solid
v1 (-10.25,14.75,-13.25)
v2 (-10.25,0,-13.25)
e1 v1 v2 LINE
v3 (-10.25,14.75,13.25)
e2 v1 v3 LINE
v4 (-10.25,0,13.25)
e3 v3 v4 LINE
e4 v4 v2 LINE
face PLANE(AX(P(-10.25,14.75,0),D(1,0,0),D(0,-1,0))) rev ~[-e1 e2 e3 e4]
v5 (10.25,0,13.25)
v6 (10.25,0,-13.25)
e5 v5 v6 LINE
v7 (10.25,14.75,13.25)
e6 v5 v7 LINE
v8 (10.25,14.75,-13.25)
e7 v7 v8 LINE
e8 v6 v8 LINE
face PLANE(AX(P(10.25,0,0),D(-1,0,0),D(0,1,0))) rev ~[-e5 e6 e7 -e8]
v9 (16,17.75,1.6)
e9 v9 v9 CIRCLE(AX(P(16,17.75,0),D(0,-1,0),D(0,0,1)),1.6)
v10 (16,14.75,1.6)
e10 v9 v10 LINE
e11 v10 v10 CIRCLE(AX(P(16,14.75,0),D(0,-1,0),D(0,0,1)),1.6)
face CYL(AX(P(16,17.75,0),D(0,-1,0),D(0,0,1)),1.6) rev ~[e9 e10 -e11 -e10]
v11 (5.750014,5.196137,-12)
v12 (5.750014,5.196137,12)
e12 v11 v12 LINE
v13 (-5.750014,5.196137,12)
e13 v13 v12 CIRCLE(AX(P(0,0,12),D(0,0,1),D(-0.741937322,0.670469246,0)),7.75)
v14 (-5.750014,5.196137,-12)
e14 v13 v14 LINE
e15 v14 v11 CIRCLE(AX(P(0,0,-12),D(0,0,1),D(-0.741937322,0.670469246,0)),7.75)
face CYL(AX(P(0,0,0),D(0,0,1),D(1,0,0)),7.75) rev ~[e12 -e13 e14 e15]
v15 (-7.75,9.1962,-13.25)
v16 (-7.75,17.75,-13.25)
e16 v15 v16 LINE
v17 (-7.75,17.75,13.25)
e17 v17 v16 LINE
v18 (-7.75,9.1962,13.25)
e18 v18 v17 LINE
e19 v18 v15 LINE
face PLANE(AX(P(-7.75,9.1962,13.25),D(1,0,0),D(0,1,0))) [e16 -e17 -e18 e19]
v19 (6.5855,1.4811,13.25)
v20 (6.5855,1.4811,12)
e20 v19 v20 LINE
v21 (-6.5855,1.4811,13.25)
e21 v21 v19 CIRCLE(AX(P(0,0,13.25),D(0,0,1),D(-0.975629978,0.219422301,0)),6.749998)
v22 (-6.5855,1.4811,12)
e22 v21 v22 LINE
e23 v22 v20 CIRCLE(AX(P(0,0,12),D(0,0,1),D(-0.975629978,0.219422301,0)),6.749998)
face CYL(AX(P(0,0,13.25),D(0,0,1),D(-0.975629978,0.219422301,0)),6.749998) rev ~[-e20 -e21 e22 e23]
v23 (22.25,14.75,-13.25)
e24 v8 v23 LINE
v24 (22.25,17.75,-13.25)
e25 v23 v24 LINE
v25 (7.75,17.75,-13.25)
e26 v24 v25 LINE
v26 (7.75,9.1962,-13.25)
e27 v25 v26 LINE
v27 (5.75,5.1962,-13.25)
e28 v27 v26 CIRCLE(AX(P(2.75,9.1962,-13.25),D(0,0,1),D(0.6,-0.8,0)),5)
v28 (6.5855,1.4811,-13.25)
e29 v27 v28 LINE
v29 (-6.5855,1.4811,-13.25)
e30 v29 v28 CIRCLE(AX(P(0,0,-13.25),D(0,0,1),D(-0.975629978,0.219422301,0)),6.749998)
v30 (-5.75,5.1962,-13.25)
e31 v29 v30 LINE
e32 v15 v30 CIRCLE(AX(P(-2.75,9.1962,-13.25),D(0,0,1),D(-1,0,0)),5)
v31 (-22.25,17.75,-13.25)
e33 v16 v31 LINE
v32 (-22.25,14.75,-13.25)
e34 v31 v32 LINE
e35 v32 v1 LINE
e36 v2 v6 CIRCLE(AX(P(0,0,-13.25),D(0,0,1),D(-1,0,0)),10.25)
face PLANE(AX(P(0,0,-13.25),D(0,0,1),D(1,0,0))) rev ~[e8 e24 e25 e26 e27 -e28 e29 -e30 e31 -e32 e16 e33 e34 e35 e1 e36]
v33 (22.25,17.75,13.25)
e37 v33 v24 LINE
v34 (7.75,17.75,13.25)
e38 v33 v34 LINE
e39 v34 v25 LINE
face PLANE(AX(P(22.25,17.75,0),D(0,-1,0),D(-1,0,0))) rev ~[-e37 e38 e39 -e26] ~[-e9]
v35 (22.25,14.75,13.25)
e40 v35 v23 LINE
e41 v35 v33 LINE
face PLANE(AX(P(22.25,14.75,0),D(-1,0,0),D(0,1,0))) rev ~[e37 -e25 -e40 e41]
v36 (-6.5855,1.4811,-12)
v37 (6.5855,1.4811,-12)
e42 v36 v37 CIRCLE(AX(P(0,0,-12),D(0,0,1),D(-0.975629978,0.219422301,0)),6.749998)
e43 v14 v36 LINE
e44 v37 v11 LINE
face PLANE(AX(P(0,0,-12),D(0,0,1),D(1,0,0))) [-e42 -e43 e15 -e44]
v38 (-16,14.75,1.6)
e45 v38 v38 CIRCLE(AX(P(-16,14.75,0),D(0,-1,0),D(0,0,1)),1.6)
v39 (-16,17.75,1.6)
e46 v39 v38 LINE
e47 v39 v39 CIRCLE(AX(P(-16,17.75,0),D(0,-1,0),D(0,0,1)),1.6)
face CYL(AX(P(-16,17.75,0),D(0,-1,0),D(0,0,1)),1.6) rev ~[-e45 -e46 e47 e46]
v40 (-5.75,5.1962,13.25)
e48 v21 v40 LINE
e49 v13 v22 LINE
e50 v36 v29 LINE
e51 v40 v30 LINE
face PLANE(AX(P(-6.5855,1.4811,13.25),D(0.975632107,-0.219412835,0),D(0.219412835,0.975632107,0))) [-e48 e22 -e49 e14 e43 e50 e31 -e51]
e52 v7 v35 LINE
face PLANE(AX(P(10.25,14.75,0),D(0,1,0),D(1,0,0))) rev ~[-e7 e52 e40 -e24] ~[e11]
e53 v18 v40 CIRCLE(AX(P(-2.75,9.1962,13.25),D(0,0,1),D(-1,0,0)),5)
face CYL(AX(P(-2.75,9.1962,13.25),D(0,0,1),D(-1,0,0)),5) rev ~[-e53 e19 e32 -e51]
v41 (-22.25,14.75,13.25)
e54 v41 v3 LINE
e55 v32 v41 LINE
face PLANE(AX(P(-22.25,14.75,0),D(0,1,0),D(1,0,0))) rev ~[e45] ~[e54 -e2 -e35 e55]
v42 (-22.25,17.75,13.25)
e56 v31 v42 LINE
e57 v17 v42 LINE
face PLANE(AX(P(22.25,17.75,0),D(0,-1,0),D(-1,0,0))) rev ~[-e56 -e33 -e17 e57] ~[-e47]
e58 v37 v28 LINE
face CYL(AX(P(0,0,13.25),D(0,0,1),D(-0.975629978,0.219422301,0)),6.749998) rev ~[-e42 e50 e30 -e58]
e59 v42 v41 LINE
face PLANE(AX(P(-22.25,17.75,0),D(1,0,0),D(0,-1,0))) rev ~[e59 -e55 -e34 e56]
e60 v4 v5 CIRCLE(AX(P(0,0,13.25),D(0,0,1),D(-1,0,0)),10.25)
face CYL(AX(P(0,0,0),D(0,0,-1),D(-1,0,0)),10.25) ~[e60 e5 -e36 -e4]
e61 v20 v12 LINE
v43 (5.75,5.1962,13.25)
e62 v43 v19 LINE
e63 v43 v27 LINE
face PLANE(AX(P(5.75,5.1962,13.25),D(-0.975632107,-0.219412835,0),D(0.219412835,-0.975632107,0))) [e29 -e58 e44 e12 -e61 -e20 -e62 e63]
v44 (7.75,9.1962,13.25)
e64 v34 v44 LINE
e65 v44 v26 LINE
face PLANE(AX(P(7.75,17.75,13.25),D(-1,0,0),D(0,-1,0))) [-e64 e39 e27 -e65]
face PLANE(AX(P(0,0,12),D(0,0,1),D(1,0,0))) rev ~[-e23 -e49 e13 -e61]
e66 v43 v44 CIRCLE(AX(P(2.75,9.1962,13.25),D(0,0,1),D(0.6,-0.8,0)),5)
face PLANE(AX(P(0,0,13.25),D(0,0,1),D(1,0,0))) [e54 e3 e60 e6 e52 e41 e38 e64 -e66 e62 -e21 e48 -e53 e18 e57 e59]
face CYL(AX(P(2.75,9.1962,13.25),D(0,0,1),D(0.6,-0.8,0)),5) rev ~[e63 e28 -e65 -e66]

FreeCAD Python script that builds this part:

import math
import FreeCAD as App
import Part
import Sketcher

V = App.Vector

doc = App.newDocument("Part")
params = doc.addObject("Spreadsheet::Sheet", "Params")
for row, (alias, value) in enumerate([
    ("sketch1_height", "3 mm"),
    ("sketch1_radius", "10.25 mm"),
    ("sketch1_width", "44.5 mm"),
    ("pad1_length", "26.5 mm"),
    ("sketch2_radius", "5 mm"),
    ("sketch2_radius2", "6.75 mm"),
    ("pocket1_length", "26.5 mm"),
    ("sketch3_diameter", "15.5 mm"),
    ("pocket2_length", "24 mm"),
    ("sketch4_diameter", "3.2 mm"),
    ("hole_diameter", "3.2 mm"),
], start=1):
    params.set(f"A{row}", alias)
    params.set(f"B{row}", "=" + value)
    params.setAlias(f"B{row}", alias)

body = doc.addObject("PartDesign::Body", "Body")

# Sketch on XY plane
sketch1 = body.newObject("Sketcher::SketchObject", "Sketch")
sketch1.AttachmentSupport = (doc.getObject("XY_Plane"), [""])
sketch1.MapMode = "FlatFace"
sketch1.addGeometry([
    Part.LineSegment(V(22.2, 17.8, 0), V(-22.2, 17.8, 0)),  # 0
    Part.LineSegment(V(-22.2, 17.8, 0), V(-22.2, 14.8, 0)),  # 1
    Part.LineSegment(V(-22.2, 14.8, 0), V(-10.2, 14.8, 0)),  # 2
    Part.LineSegment(V(-10.2, 14.8, 0), V(-10.2, 0, 0)),  # 3
    Part.ArcOfCircle(Part.Circle(V(0, 0, 0), V(0, 0, 1), 10.2), math.radians(180), math.radians(360)),  # 4
    Part.LineSegment(V(10.2, 0, 0), V(10.2, 14.8, 0)),  # 5
    Part.LineSegment(V(10.2, 14.8, 0), V(22.2, 14.8, 0)),  # 6
    Part.LineSegment(V(22.2, 14.8, 0), V(22.2, 17.8, 0)),  # 7
], False)
sketch1.addConstraint([
    Sketcher.Constraint("Coincident", 0, 2, 1, 1),
    Sketcher.Constraint("Coincident", 1, 2, 2, 1),
    Sketcher.Constraint("Coincident", 2, 2, 3, 1),
    Sketcher.Constraint("Tangent", 3, 2, 4, 1),
    Sketcher.Constraint("Tangent", 4, 2, 5, 1),
    Sketcher.Constraint("Coincident", 5, 2, 6, 1),
    Sketcher.Constraint("Coincident", 6, 2, 7, 1),
    Sketcher.Constraint("Coincident", 7, 2, 0, 1),
    Sketcher.Constraint("Horizontal", 0),
    Sketcher.Constraint("Vertical", 1),
    Sketcher.Constraint("Horizontal", 2),
    Sketcher.Constraint("Vertical", 3),
    Sketcher.Constraint("Vertical", 5),
    Sketcher.Constraint("Horizontal", 6),
    Sketcher.Constraint("Vertical", 7),
    Sketcher.Constraint("Coincident", 4, 3, -1, 1),
    Sketcher.Constraint("Symmetric", 1, 2, 6, 2, -2),
    Sketcher.Constraint("DistanceY", 1, 2, 1, 1, 3.0),
    Sketcher.Constraint("Radius", 4, 10.25),
    Sketcher.Constraint("DistanceX", 0, 2, 0, 1, 44.5),
    Sketcher.Constraint("DistanceY", -1, 1, 0, 2, 17.75),
])
sketch1.setExpression("Constraints[17]", "Params.sketch1_height")
sketch1.setExpression("Constraints[18]", "Params.sketch1_radius")
sketch1.setExpression("Constraints[19]", "Params.sketch1_width")
pad1 = body.newObject("PartDesign::Pad", "Pad")
pad1.Profile = sketch1
pad1.setExpression("Length", "Params.pad1_length")
pad1.Midplane = True

# Sketch on XY plane
sketch2 = body.newObject("Sketcher::SketchObject", "Sketch001")
sketch2.AttachmentSupport = (doc.getObject("XY_Plane"), [""])
sketch2.MapMode = "FlatFace"
sketch2.AttachmentOffset = App.Placement(V(0, 0, 13.25), App.Rotation())
sketch2.addGeometry([
    Part.LineSegment(V(7.8, 17.8, 0), V(-7.8, 17.8, 0)),  # 0
    Part.LineSegment(V(-7.8, 17.8, 0), V(-7.8, 9.2, 0)),  # 1
    Part.ArcOfCircle(Part.Circle(V(-2.8, 9.2, 0), V(0, 0, 1), 5), math.radians(180), math.radians(233)),  # 2
    Part.LineSegment(V(-5.8, 5.2, 0), V(-6.6, 1.5, 0)),  # 3
    Part.ArcOfCircle(Part.Circle(V(0, 0, 0), V(0, 0, 1), 6.7), math.radians(167), math.radians(373)),  # 4
    Part.LineSegment(V(6.6, 1.5, 0), V(5.8, 5.2, 0)),  # 5
    Part.ArcOfCircle(Part.Circle(V(2.8, 9.2, 0), V(0, 0, 1), 5), math.radians(-53), math.radians(0)),  # 6
    Part.LineSegment(V(7.8, 9.2, 0), V(7.8, 17.8, 0)),  # 7
], False)
sketch2.addConstraint([
    Sketcher.Constraint("Coincident", 0, 2, 1, 1),
    Sketcher.Constraint("Tangent", 1, 2, 2, 1),
    Sketcher.Constraint("Coincident", 2, 2, 3, 1),
    Sketcher.Constraint("Tangent", 3, 2, 4, 1),
    Sketcher.Constraint("Tangent", 4, 2, 5, 1),
    Sketcher.Constraint("Coincident", 5, 2, 6, 1),
    Sketcher.Constraint("Tangent", 6, 2, 7, 1),
    Sketcher.Constraint("Coincident", 7, 2, 0, 1),
    Sketcher.Constraint("Horizontal", 0),
    Sketcher.Constraint("Vertical", 1),
    Sketcher.Constraint("Vertical", 7),
    Sketcher.Constraint("Coincident", 4, 3, -1, 1),
    Sketcher.Constraint("Equal", 2, 6),
    Sketcher.Constraint("Symmetric", 2, 3, 6, 3, -2),
    Sketcher.Constraint("Horizontal", 3, 2, 4, 2),
    Sketcher.Constraint("Radius", 2, 5.0),
    Sketcher.Constraint("Radius", 4, 6.75),
    Sketcher.Constraint("DistanceX", 2, 2, 5, 2, 11.5),
    Sketcher.Constraint("DistanceX", 0, 2, -1, 1, 7.75),
    Sketcher.Constraint("DistanceY", -1, 1, 0, 2, 17.75),
    Sketcher.Constraint("Distance", 3, 3.808),
])
sketch2.setExpression("Constraints[15]", "Params.sketch2_radius")
sketch2.setExpression("Constraints[16]", "Params.sketch2_radius2")
pocket1 = body.newObject("PartDesign::Pocket", "Pocket")
pocket1.Profile = sketch2
pocket1.setExpression("Length", "Params.pocket1_length")

# Sketch on XY plane
sketch3 = body.newObject("Sketcher::SketchObject", "Sketch002")
sketch3.AttachmentSupport = (doc.getObject("XY_Plane"), [""])
sketch3.MapMode = "FlatFace"
sketch3.addGeometry(Part.Circle(V(0, 0, 0), V(0, 0, 1), 8), False)
sketch3.addConstraint([
    Sketcher.Constraint("Coincident", 0, 3, -1, 1),
    Sketcher.Constraint("Diameter", 0, 15.5),
])
sketch3.setExpression("Constraints[1]", "Params.sketch3_diameter")
pocket2 = body.newObject("PartDesign::Pocket", "Pocket001")
pocket2.Profile = sketch3
pocket2.setExpression("Length", "Params.pocket2_length")
pocket2.Midplane = True

# Sketch on XZ plane
sketch4 = body.newObject("Sketcher::SketchObject", "Sketch003")
sketch4.AttachmentSupport = (doc.getObject("XZ_Plane"), [""])
sketch4.MapMode = "FlatFace"
sketch4.AttachmentOffset = App.Placement(V(0, 0, -17.75), App.Rotation())
sketch4.addGeometry([
    Part.Circle(V(-16, 0, 0), V(0, 0, 1), 1.6),
    Part.Circle(V(16, 0, 0), V(0, 0, 1), 1.6),
], False)
sketch4.addConstraint([
    Sketcher.Constraint("Equal", 0, 1),
    Sketcher.Constraint("Symmetric", 0, 3, 1, 3, -1, 1),
    Sketcher.Constraint("PointOnObject", 0, 3, -1),
    Sketcher.Constraint("Diameter", 0, 3.2),
    Sketcher.Constraint("DistanceX", 0, 3, -1, 1, 16.0),
])
sketch4.setExpression("Constraints[3]", "Params.sketch4_diameter")
doc.recompute()
hole = body.newObject("PartDesign::Hole", "Hole")
hole.Profile = sketch4
hole.ThreadType = "None"
hole.setExpression("Diameter", "Params.hole_diameter")
hole.DepthType = "ThroughAll"
hole.Reversed = True

doc.recompute()
